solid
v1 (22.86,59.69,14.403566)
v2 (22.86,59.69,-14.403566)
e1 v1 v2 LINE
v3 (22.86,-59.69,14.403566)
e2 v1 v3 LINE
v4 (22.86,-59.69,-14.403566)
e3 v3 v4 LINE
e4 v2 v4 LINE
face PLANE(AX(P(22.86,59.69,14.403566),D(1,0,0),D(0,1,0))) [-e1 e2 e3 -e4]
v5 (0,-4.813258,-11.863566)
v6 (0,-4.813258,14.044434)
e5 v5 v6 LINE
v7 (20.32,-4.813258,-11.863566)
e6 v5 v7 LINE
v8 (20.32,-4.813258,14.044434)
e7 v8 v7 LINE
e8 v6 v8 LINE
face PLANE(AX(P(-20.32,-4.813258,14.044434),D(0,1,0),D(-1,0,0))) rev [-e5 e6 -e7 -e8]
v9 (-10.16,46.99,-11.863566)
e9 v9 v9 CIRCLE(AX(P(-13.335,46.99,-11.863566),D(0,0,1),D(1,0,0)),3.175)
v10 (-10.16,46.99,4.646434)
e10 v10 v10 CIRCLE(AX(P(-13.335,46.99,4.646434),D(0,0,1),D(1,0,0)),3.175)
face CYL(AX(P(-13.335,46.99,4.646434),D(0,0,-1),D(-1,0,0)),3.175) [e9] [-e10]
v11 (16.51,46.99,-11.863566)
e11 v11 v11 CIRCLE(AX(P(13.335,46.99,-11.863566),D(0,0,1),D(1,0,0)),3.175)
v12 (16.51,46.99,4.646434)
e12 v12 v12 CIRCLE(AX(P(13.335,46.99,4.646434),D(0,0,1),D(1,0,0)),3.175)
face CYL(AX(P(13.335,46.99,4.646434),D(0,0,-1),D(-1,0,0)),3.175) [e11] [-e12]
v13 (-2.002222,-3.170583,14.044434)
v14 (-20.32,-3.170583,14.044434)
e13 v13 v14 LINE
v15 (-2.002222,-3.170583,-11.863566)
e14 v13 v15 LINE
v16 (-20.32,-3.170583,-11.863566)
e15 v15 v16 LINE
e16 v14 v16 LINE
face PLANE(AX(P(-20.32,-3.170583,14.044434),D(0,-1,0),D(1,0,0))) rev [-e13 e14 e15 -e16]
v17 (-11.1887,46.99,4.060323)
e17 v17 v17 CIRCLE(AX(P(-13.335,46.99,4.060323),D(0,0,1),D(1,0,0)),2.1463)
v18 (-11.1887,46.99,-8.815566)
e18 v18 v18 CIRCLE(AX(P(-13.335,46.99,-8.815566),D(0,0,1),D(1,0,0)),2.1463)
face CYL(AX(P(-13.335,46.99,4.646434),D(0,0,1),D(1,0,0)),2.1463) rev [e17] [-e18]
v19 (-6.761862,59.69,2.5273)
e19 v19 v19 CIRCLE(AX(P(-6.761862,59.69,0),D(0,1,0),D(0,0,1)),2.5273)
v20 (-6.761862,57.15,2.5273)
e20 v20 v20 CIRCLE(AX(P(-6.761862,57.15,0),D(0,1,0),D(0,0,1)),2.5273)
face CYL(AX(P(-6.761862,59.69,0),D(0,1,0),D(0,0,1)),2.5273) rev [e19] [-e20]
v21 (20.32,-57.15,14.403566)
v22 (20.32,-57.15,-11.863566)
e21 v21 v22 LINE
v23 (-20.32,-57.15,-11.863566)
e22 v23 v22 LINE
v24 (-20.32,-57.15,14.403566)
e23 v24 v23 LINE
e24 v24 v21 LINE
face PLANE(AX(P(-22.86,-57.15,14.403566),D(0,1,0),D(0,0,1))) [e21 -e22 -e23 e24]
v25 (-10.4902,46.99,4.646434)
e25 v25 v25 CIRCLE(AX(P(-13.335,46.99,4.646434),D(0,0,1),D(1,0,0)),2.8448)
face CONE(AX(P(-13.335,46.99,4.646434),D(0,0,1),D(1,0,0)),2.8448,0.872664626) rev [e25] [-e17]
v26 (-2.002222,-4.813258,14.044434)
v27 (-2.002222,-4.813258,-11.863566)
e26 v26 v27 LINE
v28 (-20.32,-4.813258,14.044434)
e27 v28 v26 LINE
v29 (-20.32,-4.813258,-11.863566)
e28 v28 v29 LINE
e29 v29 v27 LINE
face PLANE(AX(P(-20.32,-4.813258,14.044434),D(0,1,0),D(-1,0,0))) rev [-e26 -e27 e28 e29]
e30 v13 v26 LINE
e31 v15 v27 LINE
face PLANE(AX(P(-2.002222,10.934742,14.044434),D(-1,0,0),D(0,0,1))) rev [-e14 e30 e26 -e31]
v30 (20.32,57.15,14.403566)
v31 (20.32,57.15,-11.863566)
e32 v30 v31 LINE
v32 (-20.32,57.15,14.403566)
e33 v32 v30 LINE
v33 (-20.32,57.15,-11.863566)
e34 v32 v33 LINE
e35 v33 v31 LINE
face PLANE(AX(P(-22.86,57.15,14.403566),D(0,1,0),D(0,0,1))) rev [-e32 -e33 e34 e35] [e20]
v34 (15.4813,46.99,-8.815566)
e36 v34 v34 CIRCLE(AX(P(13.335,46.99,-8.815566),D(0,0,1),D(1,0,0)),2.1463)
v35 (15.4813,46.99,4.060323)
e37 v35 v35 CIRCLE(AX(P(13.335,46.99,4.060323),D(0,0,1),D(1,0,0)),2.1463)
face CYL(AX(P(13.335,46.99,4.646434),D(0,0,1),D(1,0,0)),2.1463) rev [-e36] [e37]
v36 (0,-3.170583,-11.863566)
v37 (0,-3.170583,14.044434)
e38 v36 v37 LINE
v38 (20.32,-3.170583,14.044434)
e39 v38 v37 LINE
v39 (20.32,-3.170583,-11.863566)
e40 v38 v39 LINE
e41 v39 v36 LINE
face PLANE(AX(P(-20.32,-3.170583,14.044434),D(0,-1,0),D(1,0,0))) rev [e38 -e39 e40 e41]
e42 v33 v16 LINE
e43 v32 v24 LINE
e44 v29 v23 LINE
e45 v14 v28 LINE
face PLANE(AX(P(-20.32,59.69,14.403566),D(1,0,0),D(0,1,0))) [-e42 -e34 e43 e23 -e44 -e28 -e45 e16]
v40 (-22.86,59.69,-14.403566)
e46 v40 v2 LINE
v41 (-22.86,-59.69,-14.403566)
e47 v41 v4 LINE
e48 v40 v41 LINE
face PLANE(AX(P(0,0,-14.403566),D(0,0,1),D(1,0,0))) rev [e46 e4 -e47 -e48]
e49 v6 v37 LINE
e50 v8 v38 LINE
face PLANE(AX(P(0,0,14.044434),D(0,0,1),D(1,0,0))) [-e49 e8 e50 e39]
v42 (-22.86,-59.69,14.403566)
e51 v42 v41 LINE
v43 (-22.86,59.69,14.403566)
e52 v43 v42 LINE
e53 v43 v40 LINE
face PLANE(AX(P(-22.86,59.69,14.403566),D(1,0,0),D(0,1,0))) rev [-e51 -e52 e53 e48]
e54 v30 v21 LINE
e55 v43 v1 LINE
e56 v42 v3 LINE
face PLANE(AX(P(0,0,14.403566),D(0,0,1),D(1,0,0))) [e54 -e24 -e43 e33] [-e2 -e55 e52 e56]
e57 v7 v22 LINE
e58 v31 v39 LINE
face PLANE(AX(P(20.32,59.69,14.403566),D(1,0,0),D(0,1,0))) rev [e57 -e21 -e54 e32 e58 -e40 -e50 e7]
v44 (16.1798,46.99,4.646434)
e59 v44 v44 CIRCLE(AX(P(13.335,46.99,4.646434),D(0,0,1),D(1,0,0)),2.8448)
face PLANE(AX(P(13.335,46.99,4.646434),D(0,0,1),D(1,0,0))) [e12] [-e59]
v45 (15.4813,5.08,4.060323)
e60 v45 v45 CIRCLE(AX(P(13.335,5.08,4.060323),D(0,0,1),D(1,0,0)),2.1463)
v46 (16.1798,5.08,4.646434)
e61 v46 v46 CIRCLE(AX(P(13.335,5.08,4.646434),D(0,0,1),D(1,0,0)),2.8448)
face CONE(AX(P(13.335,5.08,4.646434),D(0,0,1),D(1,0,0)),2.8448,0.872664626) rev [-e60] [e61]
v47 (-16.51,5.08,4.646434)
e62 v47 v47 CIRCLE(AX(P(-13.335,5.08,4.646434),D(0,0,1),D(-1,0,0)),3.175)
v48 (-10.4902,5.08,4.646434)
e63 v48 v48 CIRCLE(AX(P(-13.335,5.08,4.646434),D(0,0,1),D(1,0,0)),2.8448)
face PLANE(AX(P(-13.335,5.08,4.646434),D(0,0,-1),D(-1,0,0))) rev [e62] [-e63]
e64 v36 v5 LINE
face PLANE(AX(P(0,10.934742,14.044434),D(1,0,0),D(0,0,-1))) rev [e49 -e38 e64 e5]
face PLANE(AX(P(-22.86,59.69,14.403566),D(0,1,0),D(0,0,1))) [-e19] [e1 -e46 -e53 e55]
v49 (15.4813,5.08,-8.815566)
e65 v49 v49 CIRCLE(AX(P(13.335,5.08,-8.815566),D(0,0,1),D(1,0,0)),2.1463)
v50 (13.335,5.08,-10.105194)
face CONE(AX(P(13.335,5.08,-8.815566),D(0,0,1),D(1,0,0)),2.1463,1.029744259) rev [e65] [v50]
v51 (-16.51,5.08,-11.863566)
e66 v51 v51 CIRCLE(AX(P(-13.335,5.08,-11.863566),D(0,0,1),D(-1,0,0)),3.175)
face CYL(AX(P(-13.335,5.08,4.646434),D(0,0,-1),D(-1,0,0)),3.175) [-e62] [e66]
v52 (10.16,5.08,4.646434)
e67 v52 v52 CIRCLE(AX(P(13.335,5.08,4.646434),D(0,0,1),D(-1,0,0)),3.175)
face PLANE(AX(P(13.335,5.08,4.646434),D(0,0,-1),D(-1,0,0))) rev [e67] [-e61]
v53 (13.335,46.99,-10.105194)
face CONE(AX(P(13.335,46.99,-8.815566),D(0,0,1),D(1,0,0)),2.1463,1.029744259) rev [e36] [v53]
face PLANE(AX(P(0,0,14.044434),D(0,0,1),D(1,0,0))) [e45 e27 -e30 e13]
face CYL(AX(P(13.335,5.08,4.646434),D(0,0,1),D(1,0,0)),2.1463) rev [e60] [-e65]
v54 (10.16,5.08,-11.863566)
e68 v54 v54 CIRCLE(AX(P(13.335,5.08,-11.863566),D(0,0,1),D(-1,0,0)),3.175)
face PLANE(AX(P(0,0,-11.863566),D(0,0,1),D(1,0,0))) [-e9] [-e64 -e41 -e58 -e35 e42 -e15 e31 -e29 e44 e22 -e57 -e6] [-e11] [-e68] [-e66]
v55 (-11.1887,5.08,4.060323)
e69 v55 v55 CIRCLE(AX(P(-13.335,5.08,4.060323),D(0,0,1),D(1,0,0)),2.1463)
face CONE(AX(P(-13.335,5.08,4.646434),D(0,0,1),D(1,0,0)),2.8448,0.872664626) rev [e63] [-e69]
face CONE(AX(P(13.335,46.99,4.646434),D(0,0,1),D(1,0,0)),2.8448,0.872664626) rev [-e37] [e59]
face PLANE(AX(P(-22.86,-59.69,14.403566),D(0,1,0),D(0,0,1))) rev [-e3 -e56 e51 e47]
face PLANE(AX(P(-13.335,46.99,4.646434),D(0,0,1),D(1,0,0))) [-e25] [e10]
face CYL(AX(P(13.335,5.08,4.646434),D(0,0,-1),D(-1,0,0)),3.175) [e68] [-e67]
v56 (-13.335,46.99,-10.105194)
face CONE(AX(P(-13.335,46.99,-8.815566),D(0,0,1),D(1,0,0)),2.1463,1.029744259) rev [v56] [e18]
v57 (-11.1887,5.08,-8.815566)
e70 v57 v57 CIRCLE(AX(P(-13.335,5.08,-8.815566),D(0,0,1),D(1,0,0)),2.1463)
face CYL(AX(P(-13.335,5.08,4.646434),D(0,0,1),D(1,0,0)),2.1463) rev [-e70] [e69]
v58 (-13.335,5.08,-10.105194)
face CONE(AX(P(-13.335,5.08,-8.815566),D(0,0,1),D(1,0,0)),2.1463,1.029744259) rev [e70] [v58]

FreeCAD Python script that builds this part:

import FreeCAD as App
import Part
import Sketcher

V = App.Vector
Q = App.Units.Quantity


def faces_at(feature, points):
    """Names of the faces that lie closest to the given points."""
    faces = feature.Shape.Faces
    near = lambda p: min(range(len(faces)), key=lambda i: faces[i].distToShape(Part.Vertex(*p))[0])
    return sorted({f"Face{near(p) + 1}" for p in points})


def add_polygon(sketch, points):
    """Adds a closed chain of lines whose ends are joined by coincident constraints."""
    first, n = sketch.GeometryCount, len(points)
    for a, b in zip(points, points[1:] + points[:1]):
        sketch.addGeometry(Part.LineSegment(App.Vector(*a, 0), App.Vector(*b, 0)), False)
    for i in range(n):
        sketch.addConstraint(Sketcher.Constraint("Coincident", first + i, 2, first + (i + 1) % n, 1))

doc = App.newDocument("Part")
body = doc.addObject("PartDesign::Body", "Body")

# Sketch on XY plane
sketch1 = body.newObject("Sketcher::SketchObject", "Sketch")
sketch1.AttachmentSupport = (doc.getObject("XY_Plane"), [""])
sketch1.MapMode = "FlatFace"
add_polygon(sketch1, [(-22.86, 59.69), (-22.86, -59.69), (22.86, -59.69), (22.86, 59.69)])  # lines 0-3
sketch1.addConstraint(Sketcher.Constraint("Vertical", 0))
sketch1.addConstraint(Sketcher.Constraint("Horizontal", 1))
sketch1.addConstraint(Sketcher.Constraint("Vertical", 2))
sketch1.addConstraint(Sketcher.Constraint("Horizontal", 3))
sketch1.addConstraint(Sketcher.Constraint("Symmetric", 0, 2, 2, 2, -1, 1))
sketch1.addConstraint(Sketcher.Constraint("DistanceX", 1, 1, 1, 2, Q("1.8 in")))
sketch1.addConstraint(Sketcher.Constraint("DistanceY", 0, 2, 0, 1, Q("4.7 in")))
pad1 = body.newObject("PartDesign::Pad", "Pad")
pad1.Profile = sketch1
pad1.Length = 28.807133
pad1.Midplane = True
doc.recompute()

thickness = body.newObject("PartDesign::Thickness", "Thickness")
thickness.Base = (pad1, faces_at(pad1, [(0, 0, 14.404)]))
thickness.Value = Q("0.1 in")
thickness.Reversed = True
thickness.Join = "Intersection"

# Sketch on XY plane
sketch2 = body.newObject("Sketcher::SketchObject", "Sketch001")
sketch2.AttachmentSupport = (doc.getObject("XY_Plane"), [""])
sketch2.MapMode = "FlatFace"
sketch2.AttachmentOffset = App.Placement(V(0, 0, -11.863566), App.Rotation())
sketch2.addGeometry(Part.Circle(V(-13.335, 46.99, 0), V(0, 0, 1), 3.175), False)
sketch2.addGeometry(Part.Circle(V(13.335, 46.99, 0), V(0, 0, 1), 3.175), False)
sketch2.addGeometry(Part.Circle(V(13.335, 5.08, 0), V(0, 0, 1), 3.175), False)
sketch2.addGeometry(Part.Circle(V(-13.335, 5.08, 0), V(0, 0, 1), 3.175), False)
sketch2.addConstraint(Sketcher.Constraint("Equal", 0, 1))
sketch2.addConstraint(Sketcher.Constraint("Equal", 1, 2))
sketch2.addConstraint(Sketcher.Constraint("Equal", 2, 3))
sketch2.addConstraint(Sketcher.Constraint("Symmetric", 0, 3, 1, 3, -2))
sketch2.addConstraint(Sketcher.Constraint("Symmetric", 2, 3, 3, 3, -2))
sketch2.addConstraint(Sketcher.Constraint("Vertical", 1, 3, 2, 3))
sketch2.addConstraint(Sketcher.Constraint("Diameter", 0, Q("0.25 in")))
sketch2.addConstraint(Sketcher.Constraint("DistanceY", -1, 1, 2, 3, Q("0.2 in")))
sketch2.addConstraint(Sketcher.Constraint("DistanceY", -1, 1, 0, 3, Q("1.85 in")))
sketch2.addConstraint(Sketcher.Constraint("DistanceX", 0, 3, 1, 3, Q("1.05 in")))
pad2 = body.newObject("PartDesign::Pad", "Pad001")
pad2.Profile = sketch2
pad2.Length = Q("0.65 in")

# Sketch on XZ plane
sketch3 = body.newObject("Sketcher::SketchObject", "Sketch002")
sketch3.AttachmentSupport = (doc.getObject("XZ_Plane"), [""])
sketch3.MapMode = "FlatFace"
sketch3.AttachmentOffset = App.Placement(V(0, 0, -2.35 * 25.4), App.Rotation())
sketch3.addGeometry(Part.Circle(V(-6.761862, 0, 0), V(0, 0, 1), 2.5273), False)
sketch3.addGeometry(Part.Circle(V(-42.285601, 5.559615, 0), V(0, 0, 1), 2.5273), False)
sketch3.addConstraint(Sketcher.Constraint("Equal", 0, 1))
sketch3.addConstraint(Sketcher.Constraint("PointOnObject", 0, 3, -1))
sketch3.addConstraint(Sketcher.Constraint("Diameter", 0, Q("0.199 in")))
sketch3.addConstraint(Sketcher.Constraint("DistanceX", 1, 3, -1, 1, Q("42.285601 mm")))
sketch3.addConstraint(Sketcher.Constraint("DistanceX", 0, 3, -1, 1, Q("6.761862 mm")))
sketch3.addConstraint(Sketcher.Constraint("DistanceY", -1, 1, 1, 3, Q("5.559615 mm")))
doc.recompute()
hole = body.newObject("PartDesign::Hole", "Hole")
hole.Profile = sketch3
hole.ThreadType = "None"
hole.Diameter = Q("0.199 in")
hole.DepthType = "Dimension"
hole.Depth = Q("0.1 in")
hole.DrillPoint = "Flat"
hole.Reversed = True

# Sketch on XY plane
sketch4 = body.newObject("Sketcher::SketchObject", "Sketch003")
sketch4.AttachmentSupport = (doc.getObject("XY_Plane"), [""])
sketch4.MapMode = "FlatFace"
sketch4.AttachmentOffset = App.Placement(V(0, 0, -11.863566), App.Rotation())
add_polygon(sketch4, [(-20.32, -3.170583), (-20.32, -4.813258), (20.32, -4.813258), (20.32, -3.170583)])  # lines 0-3
sketch4.addConstraint(Sketcher.Constraint("Vertical", 0))
sketch4.addConstraint(Sketcher.Constraint("Horizontal", 1))
sketch4.addConstraint(Sketcher.Constraint("Vertical", 2))
sketch4.addConstraint(Sketcher.Constraint("Horizontal", 3))
sketch4.addConstraint(Sketcher.Constraint("DistanceX", 1, 1, 1, 2, Q("1.6 in")))
sketch4.addConstraint(Sketcher.Constraint("DistanceX", 0, 2, -1, 1, Q("0.8 in")))
sketch4.addConstraint(Sketcher.Constraint("DistanceY", 0, 2, 0, 1, Q("1.642675 mm")))
sketch4.addConstraint(Sketcher.Constraint("DistanceY", 0, 2, -1, 1, Q("4.813258 mm")))
pad3 = body.newObject("PartDesign::Pad", "Pad002")
pad3.Profile = sketch4
pad3.Length = Q("1.02 in")

# Sketch on XZ plane
sketch5 = body.newObject("Sketcher::SketchObject", "Sketch004")
sketch5.AttachmentSupport = (doc.getObject("XZ_Plane"), [""])
sketch5.MapMode = "FlatFace"
sketch5.AttachmentOffset = App.Placement(V(0, 0, 4.813258), App.Rotation())
add_polygon(sketch5, [(-2.002222, 14.044434), (-2.002222, -11.863566), (0, -11.863566), (0, 14.044434)])  # lines 0-3
sketch5.addConstraint(Sketcher.Constraint("Vertical", 0))
sketch5.addConstraint(Sketcher.Constraint("Horizontal", 1))
sketch5.addConstraint(Sketcher.Constraint("Vertical", 2))
sketch5.addConstraint(Sketcher.Constraint("Horizontal", 3))
sketch5.addConstraint(Sketcher.Constraint("PointOnObject", 1, 2, -2))
sketch5.addConstraint(Sketcher.Constraint("DistanceY", 0, 2, 0, 1, Q("1.02 in")))
sketch5.addConstraint(Sketcher.Constraint("DistanceX", 1, 1, 1, 2, Q("2.002222 mm")))
sketch5.addConstraint(Sketcher.Constraint("DistanceY", 0, 2, -1, 1, Q("11.863566 mm")))
pocket1 = body.newObject("PartDesign::Pocket", "Pocket")
pocket1.Profile = sketch5
pocket1.Length = Q("0.62 in")

# Sketch on XY plane
sketch6 = body.newObject("Sketcher::SketchObject", "Sketch005")
sketch6.AttachmentSupport = (doc.getObject("XY_Plane"), [""])
sketch6.MapMode = "FlatFace"
sketch6.AttachmentOffset = App.Placement(V(0, 0, 4.646434), App.Rotation())
sketch6.addGeometry(Part.Circle(V(-13.335, 5.08, 0), V(0, 0, 1), 2.1463), False)
sketch6.addGeometry(Part.Circle(V(-13.335, 46.99, 0), V(0, 0, 1), 2.1463), False)
sketch6.addGeometry(Part.Circle(V(13.335, 5.08, 0), V(0, 0, 1), 2.1463), False)
sketch6.addGeometry(Part.Circle(V(13.335, 46.99, 0), V(0, 0, 1), 2.1463), False)
sketch6.addConstraint(Sketcher.Constraint("Equal", 0, 1))
sketch6.addConstraint(Sketcher.Constraint("Equal", 1, 2))
sketch6.addConstraint(Sketcher.Constraint("Equal", 2, 3))
sketch6.addConstraint(Sketcher.Constraint("Symmetric", 0, 3, 2, 3, -2))
sketch6.addConstraint(Sketcher.Constraint("Symmetric", 1, 3, 3, 3, -2))
sketch6.addConstraint(Sketcher.Constraint("Vertical", 0, 3, 1, 3))
sketch6.addConstraint(Sketcher.Constraint("Diameter", 0, Q("0.169 in")))
sketch6.addConstraint(Sketcher.Constraint("DistanceY", -1, 1, 0, 3, Q("0.2 in")))
sketch6.addConstraint(Sketcher.Constraint("DistanceY", -1, 1, 1, 3, Q("1.85 in")))
sketch6.addConstraint(Sketcher.Constraint("DistanceX", 0, 3, 2, 3, Q("1.05 in")))
doc.recompute()
hole2 = body.newObject("PartDesign::Hole", "Hole001")
hole2.Profile = sketch6
hole2.ThreadType = "None"
hole2.Diameter = Q("0.169 in")
hole2.DepthType = "Dimension"
hole2.Depth = Q("0.53 in")
hole2.DrillPoint = "Angled"
hole2.DrillPointAngle = 118
hole2.HoleCutType = "Countersink"
hole2.HoleCutDiameter = Q("0.224 in")
hole2.HoleCutCountersinkAngle = 100

doc.recompute()
